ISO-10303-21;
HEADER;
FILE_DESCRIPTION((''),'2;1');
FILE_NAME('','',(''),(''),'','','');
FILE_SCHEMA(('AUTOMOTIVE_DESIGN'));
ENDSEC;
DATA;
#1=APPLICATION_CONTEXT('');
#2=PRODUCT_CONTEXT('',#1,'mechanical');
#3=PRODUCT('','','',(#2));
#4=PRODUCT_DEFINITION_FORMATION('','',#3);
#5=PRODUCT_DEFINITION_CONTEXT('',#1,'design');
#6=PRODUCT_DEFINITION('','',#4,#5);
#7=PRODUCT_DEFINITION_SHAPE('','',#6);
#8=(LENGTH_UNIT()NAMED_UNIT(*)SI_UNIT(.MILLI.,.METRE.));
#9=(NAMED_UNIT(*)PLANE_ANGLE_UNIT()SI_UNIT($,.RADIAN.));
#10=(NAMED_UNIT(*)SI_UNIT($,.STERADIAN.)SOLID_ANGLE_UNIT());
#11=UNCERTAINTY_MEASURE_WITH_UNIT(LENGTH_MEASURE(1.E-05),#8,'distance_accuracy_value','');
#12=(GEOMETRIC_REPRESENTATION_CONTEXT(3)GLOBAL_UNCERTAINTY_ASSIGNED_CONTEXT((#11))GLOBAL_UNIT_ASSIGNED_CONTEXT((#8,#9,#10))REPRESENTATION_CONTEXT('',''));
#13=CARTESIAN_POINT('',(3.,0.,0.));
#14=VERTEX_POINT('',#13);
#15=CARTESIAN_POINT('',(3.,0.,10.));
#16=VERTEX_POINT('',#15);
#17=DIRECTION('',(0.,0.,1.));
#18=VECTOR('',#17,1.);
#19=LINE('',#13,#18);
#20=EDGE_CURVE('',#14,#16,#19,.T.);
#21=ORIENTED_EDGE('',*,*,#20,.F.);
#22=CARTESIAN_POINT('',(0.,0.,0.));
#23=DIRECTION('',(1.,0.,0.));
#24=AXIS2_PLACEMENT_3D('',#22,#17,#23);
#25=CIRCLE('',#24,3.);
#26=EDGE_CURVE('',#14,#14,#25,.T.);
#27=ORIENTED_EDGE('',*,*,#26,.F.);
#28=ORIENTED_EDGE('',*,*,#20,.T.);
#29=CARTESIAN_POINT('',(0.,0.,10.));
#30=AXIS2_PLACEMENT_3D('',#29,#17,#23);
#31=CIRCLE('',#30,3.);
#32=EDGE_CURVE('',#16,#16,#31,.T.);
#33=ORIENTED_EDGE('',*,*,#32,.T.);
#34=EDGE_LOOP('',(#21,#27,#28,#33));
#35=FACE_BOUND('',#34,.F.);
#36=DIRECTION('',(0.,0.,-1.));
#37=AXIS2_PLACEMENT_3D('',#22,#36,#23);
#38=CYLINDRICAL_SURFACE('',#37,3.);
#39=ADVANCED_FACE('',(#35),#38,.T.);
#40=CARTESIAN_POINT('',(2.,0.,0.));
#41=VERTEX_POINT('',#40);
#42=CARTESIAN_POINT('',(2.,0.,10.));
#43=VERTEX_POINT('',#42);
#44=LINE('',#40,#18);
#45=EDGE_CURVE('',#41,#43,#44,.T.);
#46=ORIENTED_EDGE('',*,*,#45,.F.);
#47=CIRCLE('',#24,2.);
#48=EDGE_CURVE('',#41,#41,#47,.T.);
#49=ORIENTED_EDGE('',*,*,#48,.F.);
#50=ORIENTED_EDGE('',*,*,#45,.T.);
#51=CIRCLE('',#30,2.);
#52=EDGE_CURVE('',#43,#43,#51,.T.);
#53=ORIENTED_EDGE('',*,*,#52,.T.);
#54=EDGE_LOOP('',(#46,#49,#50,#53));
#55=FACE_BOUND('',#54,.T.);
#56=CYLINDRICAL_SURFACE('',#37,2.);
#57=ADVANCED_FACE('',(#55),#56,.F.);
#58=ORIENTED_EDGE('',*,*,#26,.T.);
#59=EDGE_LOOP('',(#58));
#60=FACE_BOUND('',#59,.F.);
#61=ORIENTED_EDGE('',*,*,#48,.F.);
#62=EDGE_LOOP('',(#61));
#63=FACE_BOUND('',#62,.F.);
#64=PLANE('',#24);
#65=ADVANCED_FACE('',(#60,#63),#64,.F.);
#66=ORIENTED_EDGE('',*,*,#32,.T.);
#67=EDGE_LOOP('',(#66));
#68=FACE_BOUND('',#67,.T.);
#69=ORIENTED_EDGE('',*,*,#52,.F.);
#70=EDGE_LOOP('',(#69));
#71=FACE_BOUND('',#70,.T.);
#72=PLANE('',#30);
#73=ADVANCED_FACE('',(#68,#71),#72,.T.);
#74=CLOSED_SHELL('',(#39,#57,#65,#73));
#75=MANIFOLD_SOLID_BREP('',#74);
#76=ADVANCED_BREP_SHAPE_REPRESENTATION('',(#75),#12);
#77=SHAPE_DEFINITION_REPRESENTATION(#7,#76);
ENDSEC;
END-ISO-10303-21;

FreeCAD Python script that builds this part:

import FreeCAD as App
import Part
import Sketcher

V = App.Vector

doc = App.newDocument("Part")
body = doc.addObject("PartDesign::Body", "Body")

# Sketch on XY plane
sketch1 = body.newObject("Sketcher::SketchObject", "Sketch")
sketch1.AttachmentSupport = (doc.getObject("XY_Plane"), [""])
sketch1.MapMode = "FlatFace"
sketch1.addGeometry(Part.Circle(V(0, 0, 0), V(0, 0, 1), 3), False)
sketch1.addGeometry(Part.Circle(V(0, 0, 0), V(0, 0, 1), 2), False)
sketch1.addConstraint(Sketcher.Constraint("Coincident", 0, 3, -1, 1))
sketch1.addConstraint(Sketcher.Constraint("Coincident", 1, 3, -1, 1))
sketch1.addConstraint(Sketcher.Constraint("Diameter", 0, 6.0))
sketch1.addConstraint(Sketcher.Constraint("Diameter", 1, 4.0))
pad1 = body.newObject("PartDesign::Pad", "Pad")
pad1.Profile = sketch1
pad1.Length = 10

doc.recompute()
